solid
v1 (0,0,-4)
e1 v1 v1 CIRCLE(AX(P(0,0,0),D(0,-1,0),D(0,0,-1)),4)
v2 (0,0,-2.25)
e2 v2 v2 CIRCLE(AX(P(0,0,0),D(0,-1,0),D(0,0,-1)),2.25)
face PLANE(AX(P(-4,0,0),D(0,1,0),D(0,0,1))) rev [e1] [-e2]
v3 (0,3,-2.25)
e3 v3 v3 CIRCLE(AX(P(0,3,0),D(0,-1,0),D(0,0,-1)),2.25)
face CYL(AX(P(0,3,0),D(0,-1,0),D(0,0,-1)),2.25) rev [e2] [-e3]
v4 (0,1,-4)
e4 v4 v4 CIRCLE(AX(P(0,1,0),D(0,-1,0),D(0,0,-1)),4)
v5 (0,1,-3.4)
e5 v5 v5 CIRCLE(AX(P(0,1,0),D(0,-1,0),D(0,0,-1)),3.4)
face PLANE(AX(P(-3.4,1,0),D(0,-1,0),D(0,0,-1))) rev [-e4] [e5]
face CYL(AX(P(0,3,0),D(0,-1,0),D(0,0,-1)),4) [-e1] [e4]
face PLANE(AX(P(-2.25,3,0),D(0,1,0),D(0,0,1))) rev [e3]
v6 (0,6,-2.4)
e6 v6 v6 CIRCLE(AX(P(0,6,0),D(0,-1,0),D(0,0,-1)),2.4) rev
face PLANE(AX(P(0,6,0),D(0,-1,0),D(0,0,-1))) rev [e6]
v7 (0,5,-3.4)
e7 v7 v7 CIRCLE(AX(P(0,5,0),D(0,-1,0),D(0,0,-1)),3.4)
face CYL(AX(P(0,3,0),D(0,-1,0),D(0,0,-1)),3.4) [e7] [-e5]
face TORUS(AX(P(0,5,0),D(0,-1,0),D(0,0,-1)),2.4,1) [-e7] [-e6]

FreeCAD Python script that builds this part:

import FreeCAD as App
import Part
import Sketcher
from FreeCAD import Vector


def edges_at(feature, points):
    """Names of the edges that pass closest to the given points."""
    edges = feature.Shape.Edges
    near = lambda p: min(range(len(edges)), key=lambda i: edges[i].distToShape(Part.Vertex(*p))[0])
    return sorted({f"Edge{near(p) + 1}" for p in points})


def add_polygon(sketch, points):
    """Adds a closed chain of lines whose ends are joined by coincident constraints."""
    first, n = sketch.GeometryCount, len(points)
    for a, b in zip(points, points[1:] + points[:1]):
        sketch.addGeometry(Part.LineSegment(App.Vector(*a, 0), App.Vector(*b, 0)), False)
    for i in range(n):
        sketch.addConstraint(Sketcher.Constraint("Coincident", first + i, 2, first + (i + 1) % n, 1))

doc = App.newDocument("Part")
params = doc.addObject("Spreadsheet::Sheet", "Params")
for row, (alias, value) in enumerate([
    ("sketch1_height", "5 mm"),
    ("sketch1_height2", "1 mm"),
    ("sketch1_width", "3.4 mm"),
    ("sketch1_width2", "0.6 mm"),
    ("sketch1_width3", "1.75 mm"),
    ("revolution_angle", "360 deg"),
    ("fillet_radius", "1 mm"),
], start=1):
    params.set(f"A{row}", alias)
    params.set(f"B{row}", "=" + value)
    params.setAlias(f"B{row}", alias)

body = doc.addObject("PartDesign::Body", "Body")

# Sketch on XY plane
sketch1 = doc.addObject("Sketcher::SketchObject", "Sketch")
body.addObject(sketch1)
sketch1.AttachmentSupport = (doc.XY_Plane, [""])
sketch1.MapMode = "FlatFace"
add_polygon(sketch1, [(0, 6), (-3.4, 6), (-3.4, 1), (-4, 1), (-4, 0), (-2.25, 0), (-2.25, 3), (0, 3)])  # lines 0-7
sketch1.addConstraint(Sketcher.Constraint("Horizontal", 0))
sketch1.addConstraint(Sketcher.Constraint("Vertical", 1))
sketch1.addConstraint(Sketcher.Constraint("Horizontal", 2))
sketch1.addConstraint(Sketcher.Constraint("Vertical", 3))
sketch1.addConstraint(Sketcher.Constraint("Horizontal", 4))
sketch1.addConstraint(Sketcher.Constraint("Vertical", 5))
sketch1.addConstraint(Sketcher.Constraint("Horizontal", 6))
sketch1.addConstraint(Sketcher.Constraint("Vertical", 7))
sketch1.addConstraint(Sketcher.Constraint("PointOnObject", 3, 2, -1))
sketch1.addConstraint(Sketcher.Constraint("PointOnObject", 6, 2, -2))
sketch1.addConstraint(Sketcher.Constraint("Equal", 5, 7))
sketch1.addConstraint(Sketcher.Constraint("DistanceY", 1, 2, 1, 1, 5.0))
sketch1.addConstraint(Sketcher.Constraint("DistanceY", 3, 2, 3, 1, 1.0))
sketch1.addConstraint(Sketcher.Constraint("DistanceX", 0, 2, 0, 1, 3.4))
sketch1.addConstraint(Sketcher.Constraint("DistanceX", 2, 2, 2, 1, 0.6))
sketch1.addConstraint(Sketcher.Constraint("DistanceX", 4, 1, 4, 2, 1.75))
sketch1.setExpression("Constraints[19]", "Params.sketch1_height")
sketch1.setExpression("Constraints[20]", "Params.sketch1_height2")
sketch1.setExpression("Constraints[21]", "Params.sketch1_width")
sketch1.setExpression("Constraints[22]", "Params.sketch1_width2")
sketch1.setExpression("Constraints[23]", "Params.sketch1_width3")
revolution = doc.addObject("PartDesign::Revolution", "Revolution")
body.addObject(revolution)
revolution.Profile = sketch1
revolution.ReferenceAxis = (sketch1, ["V_Axis"])
revolution.setExpression("Angle", "Params.revolution_angle")
doc.recompute()

fillet = doc.addObject("PartDesign::Fillet", "Fillet")
body.addObject(fillet)
fillet.Base = (revolution, edges_at(revolution, [(3.4, 6, 0)]))
fillet.setExpression("Radius", "Params.fillet_radius")

doc.recompute()
